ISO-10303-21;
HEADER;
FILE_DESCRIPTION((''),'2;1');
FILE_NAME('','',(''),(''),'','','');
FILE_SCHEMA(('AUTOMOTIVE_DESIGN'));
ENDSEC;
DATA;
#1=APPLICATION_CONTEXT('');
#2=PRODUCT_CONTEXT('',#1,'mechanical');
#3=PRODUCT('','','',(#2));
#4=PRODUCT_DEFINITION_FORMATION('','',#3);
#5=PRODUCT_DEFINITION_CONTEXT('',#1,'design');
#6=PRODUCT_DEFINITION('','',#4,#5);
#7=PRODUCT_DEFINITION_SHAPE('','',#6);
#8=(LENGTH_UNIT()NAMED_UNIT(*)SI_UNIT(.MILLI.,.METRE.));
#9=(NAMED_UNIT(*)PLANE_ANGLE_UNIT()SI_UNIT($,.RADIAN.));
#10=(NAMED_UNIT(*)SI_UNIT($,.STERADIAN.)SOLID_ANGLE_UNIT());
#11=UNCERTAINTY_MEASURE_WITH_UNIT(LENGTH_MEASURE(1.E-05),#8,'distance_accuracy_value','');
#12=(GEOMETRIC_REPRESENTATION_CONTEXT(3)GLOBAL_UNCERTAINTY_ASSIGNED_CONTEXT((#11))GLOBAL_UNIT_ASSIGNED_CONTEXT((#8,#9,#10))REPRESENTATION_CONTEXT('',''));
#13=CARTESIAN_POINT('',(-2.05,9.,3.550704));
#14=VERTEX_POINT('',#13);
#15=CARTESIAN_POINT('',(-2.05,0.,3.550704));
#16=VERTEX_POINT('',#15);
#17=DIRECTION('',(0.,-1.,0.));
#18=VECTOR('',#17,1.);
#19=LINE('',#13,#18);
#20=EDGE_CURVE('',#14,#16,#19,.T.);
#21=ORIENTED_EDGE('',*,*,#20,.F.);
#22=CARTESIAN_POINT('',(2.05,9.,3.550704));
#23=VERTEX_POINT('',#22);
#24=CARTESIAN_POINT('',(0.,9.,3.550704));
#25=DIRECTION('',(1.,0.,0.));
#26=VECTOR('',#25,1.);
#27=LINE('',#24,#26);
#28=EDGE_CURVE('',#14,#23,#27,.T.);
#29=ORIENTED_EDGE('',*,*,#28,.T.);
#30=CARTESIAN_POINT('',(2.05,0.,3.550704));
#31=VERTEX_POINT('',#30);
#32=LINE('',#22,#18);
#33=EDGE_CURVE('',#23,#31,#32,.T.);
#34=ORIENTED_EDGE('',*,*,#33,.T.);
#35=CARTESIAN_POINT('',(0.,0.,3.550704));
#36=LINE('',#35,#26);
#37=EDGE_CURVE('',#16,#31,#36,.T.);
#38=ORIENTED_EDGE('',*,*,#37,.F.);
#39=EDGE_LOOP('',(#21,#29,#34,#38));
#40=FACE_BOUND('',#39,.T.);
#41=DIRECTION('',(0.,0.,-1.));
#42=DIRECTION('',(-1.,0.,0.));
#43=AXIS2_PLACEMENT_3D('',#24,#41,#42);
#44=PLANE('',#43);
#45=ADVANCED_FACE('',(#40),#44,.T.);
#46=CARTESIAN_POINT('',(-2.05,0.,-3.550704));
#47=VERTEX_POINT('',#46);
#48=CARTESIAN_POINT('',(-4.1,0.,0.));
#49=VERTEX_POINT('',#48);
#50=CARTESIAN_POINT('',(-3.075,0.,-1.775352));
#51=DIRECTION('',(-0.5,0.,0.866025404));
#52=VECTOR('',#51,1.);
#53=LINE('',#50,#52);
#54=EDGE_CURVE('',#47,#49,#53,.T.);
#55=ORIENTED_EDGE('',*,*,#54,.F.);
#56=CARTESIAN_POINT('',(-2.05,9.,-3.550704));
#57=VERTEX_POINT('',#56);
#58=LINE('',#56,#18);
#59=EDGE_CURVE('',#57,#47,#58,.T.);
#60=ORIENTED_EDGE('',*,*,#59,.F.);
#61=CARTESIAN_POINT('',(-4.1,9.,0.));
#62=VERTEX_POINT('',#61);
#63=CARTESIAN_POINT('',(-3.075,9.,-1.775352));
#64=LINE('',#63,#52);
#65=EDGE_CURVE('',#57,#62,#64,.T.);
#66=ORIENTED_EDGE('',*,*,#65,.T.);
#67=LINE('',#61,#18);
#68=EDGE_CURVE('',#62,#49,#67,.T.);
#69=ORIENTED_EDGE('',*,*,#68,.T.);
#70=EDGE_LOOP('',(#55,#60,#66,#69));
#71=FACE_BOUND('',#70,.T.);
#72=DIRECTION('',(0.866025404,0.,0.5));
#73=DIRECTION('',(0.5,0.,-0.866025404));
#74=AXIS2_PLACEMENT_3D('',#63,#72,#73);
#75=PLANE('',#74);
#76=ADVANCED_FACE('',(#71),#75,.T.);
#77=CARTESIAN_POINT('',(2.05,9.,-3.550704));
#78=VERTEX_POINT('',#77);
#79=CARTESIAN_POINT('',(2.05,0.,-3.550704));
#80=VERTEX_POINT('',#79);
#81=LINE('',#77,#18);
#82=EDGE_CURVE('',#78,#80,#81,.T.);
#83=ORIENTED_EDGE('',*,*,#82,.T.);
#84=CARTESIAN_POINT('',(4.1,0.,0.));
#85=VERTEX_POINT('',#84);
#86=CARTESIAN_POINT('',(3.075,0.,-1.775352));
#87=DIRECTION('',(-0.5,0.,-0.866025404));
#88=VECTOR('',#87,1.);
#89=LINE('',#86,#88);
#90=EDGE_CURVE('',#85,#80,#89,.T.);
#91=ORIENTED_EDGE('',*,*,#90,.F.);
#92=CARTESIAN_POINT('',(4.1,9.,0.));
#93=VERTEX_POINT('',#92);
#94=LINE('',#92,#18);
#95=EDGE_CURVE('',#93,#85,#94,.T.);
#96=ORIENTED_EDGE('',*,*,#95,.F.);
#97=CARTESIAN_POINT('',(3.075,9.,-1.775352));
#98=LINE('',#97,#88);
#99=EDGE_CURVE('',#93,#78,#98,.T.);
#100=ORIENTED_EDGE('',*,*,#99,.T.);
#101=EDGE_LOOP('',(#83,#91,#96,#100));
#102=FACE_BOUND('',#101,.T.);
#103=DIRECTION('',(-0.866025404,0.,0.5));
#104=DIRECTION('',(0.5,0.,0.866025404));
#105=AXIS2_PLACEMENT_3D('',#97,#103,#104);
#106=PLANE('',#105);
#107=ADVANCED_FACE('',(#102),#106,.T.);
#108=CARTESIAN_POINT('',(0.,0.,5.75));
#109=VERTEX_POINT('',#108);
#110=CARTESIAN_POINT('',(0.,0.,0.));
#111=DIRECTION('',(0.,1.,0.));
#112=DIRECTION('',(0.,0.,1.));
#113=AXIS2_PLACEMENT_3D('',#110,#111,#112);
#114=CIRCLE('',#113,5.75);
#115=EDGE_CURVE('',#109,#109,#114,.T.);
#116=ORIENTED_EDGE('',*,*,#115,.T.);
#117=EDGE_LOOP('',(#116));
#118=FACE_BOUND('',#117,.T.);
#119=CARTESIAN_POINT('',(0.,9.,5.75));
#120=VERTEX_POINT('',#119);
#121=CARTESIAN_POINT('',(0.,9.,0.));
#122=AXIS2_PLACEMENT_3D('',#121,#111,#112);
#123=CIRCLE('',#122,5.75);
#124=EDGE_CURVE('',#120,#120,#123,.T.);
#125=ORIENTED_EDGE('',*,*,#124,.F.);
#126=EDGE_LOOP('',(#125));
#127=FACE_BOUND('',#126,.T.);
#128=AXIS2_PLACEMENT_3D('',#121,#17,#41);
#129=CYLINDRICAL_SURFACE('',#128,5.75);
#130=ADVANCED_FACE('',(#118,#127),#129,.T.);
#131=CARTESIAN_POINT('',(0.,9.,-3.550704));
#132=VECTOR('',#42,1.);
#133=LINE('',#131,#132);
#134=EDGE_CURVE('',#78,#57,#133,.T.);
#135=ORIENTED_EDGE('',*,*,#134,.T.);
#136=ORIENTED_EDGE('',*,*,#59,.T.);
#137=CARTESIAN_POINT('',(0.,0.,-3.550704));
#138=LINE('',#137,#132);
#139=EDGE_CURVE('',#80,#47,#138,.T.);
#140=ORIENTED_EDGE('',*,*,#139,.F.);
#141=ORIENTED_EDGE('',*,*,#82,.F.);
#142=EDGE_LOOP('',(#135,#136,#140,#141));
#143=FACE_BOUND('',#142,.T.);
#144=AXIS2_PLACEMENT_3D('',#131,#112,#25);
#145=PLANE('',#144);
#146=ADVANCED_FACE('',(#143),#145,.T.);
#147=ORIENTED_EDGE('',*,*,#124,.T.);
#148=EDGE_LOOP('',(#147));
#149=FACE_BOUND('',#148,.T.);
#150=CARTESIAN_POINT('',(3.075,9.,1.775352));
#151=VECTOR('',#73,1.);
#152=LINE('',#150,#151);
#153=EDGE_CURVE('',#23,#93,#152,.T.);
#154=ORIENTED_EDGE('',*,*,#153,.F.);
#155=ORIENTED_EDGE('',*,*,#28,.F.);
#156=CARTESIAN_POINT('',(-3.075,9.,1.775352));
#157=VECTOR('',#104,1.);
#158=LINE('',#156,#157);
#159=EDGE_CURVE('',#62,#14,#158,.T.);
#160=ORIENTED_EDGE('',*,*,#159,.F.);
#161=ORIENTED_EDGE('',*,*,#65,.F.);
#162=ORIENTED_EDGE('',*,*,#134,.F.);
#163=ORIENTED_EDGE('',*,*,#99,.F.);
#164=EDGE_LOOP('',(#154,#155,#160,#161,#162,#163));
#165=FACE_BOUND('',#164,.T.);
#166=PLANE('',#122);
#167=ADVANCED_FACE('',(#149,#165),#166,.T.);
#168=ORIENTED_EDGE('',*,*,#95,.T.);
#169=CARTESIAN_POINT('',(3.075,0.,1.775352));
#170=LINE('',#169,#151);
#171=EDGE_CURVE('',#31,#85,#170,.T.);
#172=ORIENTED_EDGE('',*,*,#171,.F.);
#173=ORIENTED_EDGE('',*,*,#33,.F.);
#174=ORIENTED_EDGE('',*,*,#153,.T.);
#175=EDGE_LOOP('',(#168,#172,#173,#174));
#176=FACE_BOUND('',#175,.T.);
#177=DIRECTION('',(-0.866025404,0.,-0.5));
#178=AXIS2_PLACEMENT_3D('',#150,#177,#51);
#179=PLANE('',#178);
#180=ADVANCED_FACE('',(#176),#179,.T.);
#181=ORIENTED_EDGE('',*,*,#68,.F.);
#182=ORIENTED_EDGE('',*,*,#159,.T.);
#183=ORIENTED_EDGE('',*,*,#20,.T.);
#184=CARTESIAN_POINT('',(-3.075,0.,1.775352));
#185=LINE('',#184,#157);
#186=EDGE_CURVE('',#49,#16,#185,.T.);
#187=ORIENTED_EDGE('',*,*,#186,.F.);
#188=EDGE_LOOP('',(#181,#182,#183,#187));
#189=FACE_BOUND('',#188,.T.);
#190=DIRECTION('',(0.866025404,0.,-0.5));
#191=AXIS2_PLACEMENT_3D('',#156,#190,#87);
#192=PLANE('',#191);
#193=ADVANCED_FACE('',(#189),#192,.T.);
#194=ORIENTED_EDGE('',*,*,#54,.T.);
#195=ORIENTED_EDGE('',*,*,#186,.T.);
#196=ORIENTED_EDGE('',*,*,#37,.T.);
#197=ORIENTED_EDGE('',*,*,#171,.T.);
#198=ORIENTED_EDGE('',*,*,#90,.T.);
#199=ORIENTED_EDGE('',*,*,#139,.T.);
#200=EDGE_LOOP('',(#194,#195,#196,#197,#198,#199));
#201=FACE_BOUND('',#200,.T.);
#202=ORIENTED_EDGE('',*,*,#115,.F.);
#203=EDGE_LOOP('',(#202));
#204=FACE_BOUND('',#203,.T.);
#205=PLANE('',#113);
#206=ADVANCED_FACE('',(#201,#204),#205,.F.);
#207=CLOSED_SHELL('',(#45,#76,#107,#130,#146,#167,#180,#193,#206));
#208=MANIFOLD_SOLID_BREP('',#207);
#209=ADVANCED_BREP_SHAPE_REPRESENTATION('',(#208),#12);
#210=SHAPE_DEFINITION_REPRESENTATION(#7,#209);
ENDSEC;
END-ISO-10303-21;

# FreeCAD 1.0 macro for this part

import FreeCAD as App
import Part
import Sketcher
from FreeCAD import Vector
Q = App.Units.Quantity

doc = App.newDocument("Part")
body = doc.addObject("PartDesign::Body", "Body")

# Sketch on XZ plane
sketch1 = body.newObject("Sketcher::SketchObject", "Sketch")
sketch1.AttachmentSupport = (doc.getObject("XZ_Plane"), [""])
sketch1.MapMode = "FlatFace"
sketch1.addGeometry([
    Part.Circle(Vector(0, 0, 0), Vector(0, 0, 1), 5.75),  # 0
    Part.LineSegment(Vector(-4.1, 0, 0), Vector(-2.05, -3.550704, 0)),  # 1
    Part.LineSegment(Vector(-2.05, -3.550704, 0), Vector(2.05, -3.550704, 0)),  # 2
    Part.LineSegment(Vector(2.05, -3.550704, 0), Vector(4.1, 0, 0)),  # 3
    Part.LineSegment(Vector(4.1, 0, 0), Vector(2.05, 3.550704, 0)),  # 4
    Part.LineSegment(Vector(2.05, 3.550704, 0), Vector(-2.05, 3.550704, 0)),  # 5
    Part.LineSegment(Vector(-2.05, 3.550704, 0), Vector(-4.1, 0, 0)),  # 6
], False)
sketch1.addConstraint([
    Sketcher.Constraint("Coincident", 1, 2, 2, 1),
    Sketcher.Constraint("Coincident", 2, 2, 3, 1),
    Sketcher.Constraint("Coincident", 3, 2, 4, 1),
    Sketcher.Constraint("Coincident", 4, 2, 5, 1),
    Sketcher.Constraint("Coincident", 5, 2, 6, 1),
    Sketcher.Constraint("Coincident", 6, 2, 1, 1),
    Sketcher.Constraint("Horizontal", 2),
    Sketcher.Constraint("Horizontal", 5),
    Sketcher.Constraint("Coincident", 0, 3, -1, 1),
    Sketcher.Constraint("Symmetric", 1, 2, 4, 2, -1, 1),
    Sketcher.Constraint("Symmetric", 3, 2, 6, 2, -1, 1),
    Sketcher.Constraint("PointOnObject", 3, 2, -1),
    Sketcher.Constraint("Parallel", 3, 6),
    Sketcher.Constraint("Vertical", 2, 2, 4, 2),
    Sketcher.Constraint("Diameter", 0, Q("11.5 mm")),
    Sketcher.Constraint("Angle", 1, Q("-60 deg")),
    Sketcher.Constraint("DistanceX", 2, 1, 2, 2, Q("4.1 mm")),
    Sketcher.Constraint("Distance", 1, Q("4.1 mm")),
])
pad1 = body.newObject("PartDesign::Pad", "Pad")
pad1.Profile = sketch1
pad1.Length = 9
pad1.Reversed = True

doc.recompute()
